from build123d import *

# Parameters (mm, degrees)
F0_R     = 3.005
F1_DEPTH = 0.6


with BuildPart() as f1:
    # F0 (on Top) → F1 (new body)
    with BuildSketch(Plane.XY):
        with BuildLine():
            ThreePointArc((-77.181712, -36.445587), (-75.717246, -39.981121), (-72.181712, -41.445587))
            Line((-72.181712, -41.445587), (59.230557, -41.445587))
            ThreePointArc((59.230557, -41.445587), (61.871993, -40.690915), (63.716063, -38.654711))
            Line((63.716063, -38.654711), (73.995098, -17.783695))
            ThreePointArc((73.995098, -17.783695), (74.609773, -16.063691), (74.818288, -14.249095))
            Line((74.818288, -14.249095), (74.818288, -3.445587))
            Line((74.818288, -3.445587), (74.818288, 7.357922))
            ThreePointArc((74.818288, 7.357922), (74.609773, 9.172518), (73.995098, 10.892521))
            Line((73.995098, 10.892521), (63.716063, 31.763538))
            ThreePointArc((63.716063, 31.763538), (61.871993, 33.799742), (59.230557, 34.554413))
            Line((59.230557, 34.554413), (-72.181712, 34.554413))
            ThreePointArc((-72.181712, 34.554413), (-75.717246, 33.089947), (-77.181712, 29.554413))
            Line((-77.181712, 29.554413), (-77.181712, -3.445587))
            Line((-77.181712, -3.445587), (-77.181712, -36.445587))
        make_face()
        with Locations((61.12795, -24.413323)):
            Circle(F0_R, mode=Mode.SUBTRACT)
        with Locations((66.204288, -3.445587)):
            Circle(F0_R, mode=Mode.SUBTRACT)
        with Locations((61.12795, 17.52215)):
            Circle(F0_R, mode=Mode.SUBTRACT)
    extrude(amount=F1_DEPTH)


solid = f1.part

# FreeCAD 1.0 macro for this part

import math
import FreeCAD as App
import Part
import Sketcher

V = App.Vector

doc = App.newDocument("Part")
body = doc.addObject("PartDesign::Body", "Body")

sketch1 = body.newObject("Sketcher::SketchObject", "Sketch")
sketch1.AttachmentSupport = (doc.getObject("XY_Plane"), [""])
sketch1.MapMode = "FlatFace"
sketch1.addGeometry(Part.ArcOfCircle(Part.Circle(V(-72.181712, -36.445587, 0), V(0, 0, 1), 5), math.radians(179.999996), math.radians(270.000004)), False)
sketch1.addGeometry(Part.LineSegment(V(-72.181712, -41.445587, 0), V(59.230557, -41.445587, 0)), False)
sketch1.addGeometry(Part.ArcOfCircle(Part.Circle(V(59.230556, -36.445586, 0), V(0, 0, 1), 5.000001), math.radians(-89.999983), math.radians(-26.220376)), False)
sketch1.addGeometry(Part.LineSegment(V(63.716063, -38.654711, 0), V(73.995098, -17.783695, 0)), False)
sketch1.addGeometry(Part.ArcOfCircle(Part.Circle(V(66.818283, -14.249094, 0), V(0, 0, 1), 8.000005), math.radians(-26.220374), math.radians(-0.00001)), False)
sketch1.addGeometry(Part.LineSegment(V(74.818288, -14.249095, 0), V(74.818288, 7.357922, 0)), False)
sketch1.addGeometry(Part.ArcOfCircle(Part.Circle(V(66.818291, 7.357922, 0), V(0, 0, 1), 7.999997), math.radians(0.000003), math.radians(26.220388)), False)
sketch1.addGeometry(Part.LineSegment(V(73.995098, 10.892521, 0), V(63.716063, 31.763538, 0)), False)
sketch1.addGeometry(Part.ArcOfCircle(Part.Circle(V(59.230558, 29.554415, 0), V(0, 0, 1), 4.999998), math.radians(26.220365), math.radians(90.000013)), False)
sketch1.addGeometry(Part.LineSegment(V(59.230557, 34.554413, 0), V(-72.181712, 34.554413, 0)), False)
sketch1.addGeometry(Part.ArcOfCircle(Part.Circle(V(-72.181712, 29.554413, 0), V(0, 0, 1), 5), math.radians(89.999996), math.radians(180.000004)), False)
sketch1.addGeometry(Part.LineSegment(V(-77.181712, 29.554413, 0), V(-77.181712, -36.445587, 0)), False)
sketch1.addGeometry(Part.Circle(V(61.12795, -24.413323, 0), V(0, 0, 1), 3.005), False)
sketch1.addGeometry(Part.Circle(V(66.204288, -3.445587, 0), V(0, 0, 1), 3.005), False)
sketch1.addGeometry(Part.Circle(V(61.12795, 17.52215, 0), V(0, 0, 1), 3.005), False)
sketch1.addConstraint(Sketcher.Constraint("Tangent", 0, 2, 1, 1))
sketch1.addConstraint(Sketcher.Constraint("Tangent", 1, 2, 2, 1))
sketch1.addConstraint(Sketcher.Constraint("Tangent", 2, 2, 3, 1))
sketch1.addConstraint(Sketcher.Constraint("Tangent", 3, 2, 4, 1))
sketch1.addConstraint(Sketcher.Constraint("Tangent", 4, 2, 5, 1))
sketch1.addConstraint(Sketcher.Constraint("Tangent", 5, 2, 6, 1))
sketch1.addConstraint(Sketcher.Constraint("Tangent", 6, 2, 7, 1))
sketch1.addConstraint(Sketcher.Constraint("Tangent", 7, 2, 8, 1))
sketch1.addConstraint(Sketcher.Constraint("Tangent", 8, 2, 9, 1))
sketch1.addConstraint(Sketcher.Constraint("Tangent", 9, 2, 10, 1))
sketch1.addConstraint(Sketcher.Constraint("Tangent", 10, 2, 11, 1))
sketch1.addConstraint(Sketcher.Constraint("Tangent", 11, 2, 0, 1))
sketch1.addConstraint(Sketcher.Constraint("Horizontal", 1))
sketch1.addConstraint(Sketcher.Constraint("Vertical", 5))
sketch1.addConstraint(Sketcher.Constraint("Horizontal", 9))
sketch1.addConstraint(Sketcher.Constraint("Vertical", 11))
sketch1.addConstraint(Sketcher.Constraint("Equal", 0, 2))
sketch1.addConstraint(Sketcher.Constraint("Equal", 0, 8))
sketch1.addConstraint(Sketcher.Constraint("Equal", 8, 10))
sketch1.addConstraint(Sketcher.Constraint("Equal", 12, 13))
sketch1.addConstraint(Sketcher.Constraint("Equal", 13, 14))
sketch1.addConstraint(Sketcher.Constraint("Vertical", 12, 3, 14, 3))
sketch1.addConstraint(Sketcher.Constraint("Vertical", 8, 3, 1, 2))
sketch1.addConstraint(Sketcher.Constraint("Vertical", 3, 2, 6, 2))
sketch1.addConstraint(Sketcher.Constraint("Vertical", 2, 2, 7, 2))
sketch1.addConstraint(Sketcher.Constraint("Radius", 0, 5.0))
sketch1.addConstraint(Sketcher.Constraint("Diameter", 12, 6.01))
sketch1.addConstraint(Sketcher.Constraint("DistanceY", 11, 2, 11, 1, 66.0))
sketch1.addConstraint(Sketcher.Constraint("DistanceY", 2, 3, 13, 3, 32.999999))
sketch1.addConstraint(Sketcher.Constraint("Radius", 4, 8.000005))
sketch1.addConstraint(Sketcher.Constraint("DistanceX", 13, 3, 4, 2, 8.614))
sketch1.addConstraint(Sketcher.Constraint("DistanceX", 1, 1, 1, 2, 131.412269))
sketch1.addConstraint(Sketcher.Constraint("DistanceX", -1, 1, 3, 2, 73.995098))
sketch1.addConstraint(Sketcher.Constraint("DistanceY", 3, 2, 4, 3, 3.534601))
sketch1.addConstraint(Sketcher.Constraint("Distance", 3, 23.264949))
sketch1.addConstraint(Sketcher.Constraint("DistanceY", -1, 1, 6, 3, 7.357922))
sketch1.addConstraint(Sketcher.Constraint("DistanceX", -1, 1, 12, 3, 61.12795))
sketch1.addConstraint(Sketcher.Constraint("DistanceY", -1, 1, 14, 3, 17.52215))
sketch1.addConstraint(Sketcher.Constraint("DistanceY", 12, 3, 4, 3, 10.164229))
pad1 = body.newObject("PartDesign::Pad", "Pad")
pad1.Profile = sketch1
pad1.Length = 0.6

doc.recompute()
